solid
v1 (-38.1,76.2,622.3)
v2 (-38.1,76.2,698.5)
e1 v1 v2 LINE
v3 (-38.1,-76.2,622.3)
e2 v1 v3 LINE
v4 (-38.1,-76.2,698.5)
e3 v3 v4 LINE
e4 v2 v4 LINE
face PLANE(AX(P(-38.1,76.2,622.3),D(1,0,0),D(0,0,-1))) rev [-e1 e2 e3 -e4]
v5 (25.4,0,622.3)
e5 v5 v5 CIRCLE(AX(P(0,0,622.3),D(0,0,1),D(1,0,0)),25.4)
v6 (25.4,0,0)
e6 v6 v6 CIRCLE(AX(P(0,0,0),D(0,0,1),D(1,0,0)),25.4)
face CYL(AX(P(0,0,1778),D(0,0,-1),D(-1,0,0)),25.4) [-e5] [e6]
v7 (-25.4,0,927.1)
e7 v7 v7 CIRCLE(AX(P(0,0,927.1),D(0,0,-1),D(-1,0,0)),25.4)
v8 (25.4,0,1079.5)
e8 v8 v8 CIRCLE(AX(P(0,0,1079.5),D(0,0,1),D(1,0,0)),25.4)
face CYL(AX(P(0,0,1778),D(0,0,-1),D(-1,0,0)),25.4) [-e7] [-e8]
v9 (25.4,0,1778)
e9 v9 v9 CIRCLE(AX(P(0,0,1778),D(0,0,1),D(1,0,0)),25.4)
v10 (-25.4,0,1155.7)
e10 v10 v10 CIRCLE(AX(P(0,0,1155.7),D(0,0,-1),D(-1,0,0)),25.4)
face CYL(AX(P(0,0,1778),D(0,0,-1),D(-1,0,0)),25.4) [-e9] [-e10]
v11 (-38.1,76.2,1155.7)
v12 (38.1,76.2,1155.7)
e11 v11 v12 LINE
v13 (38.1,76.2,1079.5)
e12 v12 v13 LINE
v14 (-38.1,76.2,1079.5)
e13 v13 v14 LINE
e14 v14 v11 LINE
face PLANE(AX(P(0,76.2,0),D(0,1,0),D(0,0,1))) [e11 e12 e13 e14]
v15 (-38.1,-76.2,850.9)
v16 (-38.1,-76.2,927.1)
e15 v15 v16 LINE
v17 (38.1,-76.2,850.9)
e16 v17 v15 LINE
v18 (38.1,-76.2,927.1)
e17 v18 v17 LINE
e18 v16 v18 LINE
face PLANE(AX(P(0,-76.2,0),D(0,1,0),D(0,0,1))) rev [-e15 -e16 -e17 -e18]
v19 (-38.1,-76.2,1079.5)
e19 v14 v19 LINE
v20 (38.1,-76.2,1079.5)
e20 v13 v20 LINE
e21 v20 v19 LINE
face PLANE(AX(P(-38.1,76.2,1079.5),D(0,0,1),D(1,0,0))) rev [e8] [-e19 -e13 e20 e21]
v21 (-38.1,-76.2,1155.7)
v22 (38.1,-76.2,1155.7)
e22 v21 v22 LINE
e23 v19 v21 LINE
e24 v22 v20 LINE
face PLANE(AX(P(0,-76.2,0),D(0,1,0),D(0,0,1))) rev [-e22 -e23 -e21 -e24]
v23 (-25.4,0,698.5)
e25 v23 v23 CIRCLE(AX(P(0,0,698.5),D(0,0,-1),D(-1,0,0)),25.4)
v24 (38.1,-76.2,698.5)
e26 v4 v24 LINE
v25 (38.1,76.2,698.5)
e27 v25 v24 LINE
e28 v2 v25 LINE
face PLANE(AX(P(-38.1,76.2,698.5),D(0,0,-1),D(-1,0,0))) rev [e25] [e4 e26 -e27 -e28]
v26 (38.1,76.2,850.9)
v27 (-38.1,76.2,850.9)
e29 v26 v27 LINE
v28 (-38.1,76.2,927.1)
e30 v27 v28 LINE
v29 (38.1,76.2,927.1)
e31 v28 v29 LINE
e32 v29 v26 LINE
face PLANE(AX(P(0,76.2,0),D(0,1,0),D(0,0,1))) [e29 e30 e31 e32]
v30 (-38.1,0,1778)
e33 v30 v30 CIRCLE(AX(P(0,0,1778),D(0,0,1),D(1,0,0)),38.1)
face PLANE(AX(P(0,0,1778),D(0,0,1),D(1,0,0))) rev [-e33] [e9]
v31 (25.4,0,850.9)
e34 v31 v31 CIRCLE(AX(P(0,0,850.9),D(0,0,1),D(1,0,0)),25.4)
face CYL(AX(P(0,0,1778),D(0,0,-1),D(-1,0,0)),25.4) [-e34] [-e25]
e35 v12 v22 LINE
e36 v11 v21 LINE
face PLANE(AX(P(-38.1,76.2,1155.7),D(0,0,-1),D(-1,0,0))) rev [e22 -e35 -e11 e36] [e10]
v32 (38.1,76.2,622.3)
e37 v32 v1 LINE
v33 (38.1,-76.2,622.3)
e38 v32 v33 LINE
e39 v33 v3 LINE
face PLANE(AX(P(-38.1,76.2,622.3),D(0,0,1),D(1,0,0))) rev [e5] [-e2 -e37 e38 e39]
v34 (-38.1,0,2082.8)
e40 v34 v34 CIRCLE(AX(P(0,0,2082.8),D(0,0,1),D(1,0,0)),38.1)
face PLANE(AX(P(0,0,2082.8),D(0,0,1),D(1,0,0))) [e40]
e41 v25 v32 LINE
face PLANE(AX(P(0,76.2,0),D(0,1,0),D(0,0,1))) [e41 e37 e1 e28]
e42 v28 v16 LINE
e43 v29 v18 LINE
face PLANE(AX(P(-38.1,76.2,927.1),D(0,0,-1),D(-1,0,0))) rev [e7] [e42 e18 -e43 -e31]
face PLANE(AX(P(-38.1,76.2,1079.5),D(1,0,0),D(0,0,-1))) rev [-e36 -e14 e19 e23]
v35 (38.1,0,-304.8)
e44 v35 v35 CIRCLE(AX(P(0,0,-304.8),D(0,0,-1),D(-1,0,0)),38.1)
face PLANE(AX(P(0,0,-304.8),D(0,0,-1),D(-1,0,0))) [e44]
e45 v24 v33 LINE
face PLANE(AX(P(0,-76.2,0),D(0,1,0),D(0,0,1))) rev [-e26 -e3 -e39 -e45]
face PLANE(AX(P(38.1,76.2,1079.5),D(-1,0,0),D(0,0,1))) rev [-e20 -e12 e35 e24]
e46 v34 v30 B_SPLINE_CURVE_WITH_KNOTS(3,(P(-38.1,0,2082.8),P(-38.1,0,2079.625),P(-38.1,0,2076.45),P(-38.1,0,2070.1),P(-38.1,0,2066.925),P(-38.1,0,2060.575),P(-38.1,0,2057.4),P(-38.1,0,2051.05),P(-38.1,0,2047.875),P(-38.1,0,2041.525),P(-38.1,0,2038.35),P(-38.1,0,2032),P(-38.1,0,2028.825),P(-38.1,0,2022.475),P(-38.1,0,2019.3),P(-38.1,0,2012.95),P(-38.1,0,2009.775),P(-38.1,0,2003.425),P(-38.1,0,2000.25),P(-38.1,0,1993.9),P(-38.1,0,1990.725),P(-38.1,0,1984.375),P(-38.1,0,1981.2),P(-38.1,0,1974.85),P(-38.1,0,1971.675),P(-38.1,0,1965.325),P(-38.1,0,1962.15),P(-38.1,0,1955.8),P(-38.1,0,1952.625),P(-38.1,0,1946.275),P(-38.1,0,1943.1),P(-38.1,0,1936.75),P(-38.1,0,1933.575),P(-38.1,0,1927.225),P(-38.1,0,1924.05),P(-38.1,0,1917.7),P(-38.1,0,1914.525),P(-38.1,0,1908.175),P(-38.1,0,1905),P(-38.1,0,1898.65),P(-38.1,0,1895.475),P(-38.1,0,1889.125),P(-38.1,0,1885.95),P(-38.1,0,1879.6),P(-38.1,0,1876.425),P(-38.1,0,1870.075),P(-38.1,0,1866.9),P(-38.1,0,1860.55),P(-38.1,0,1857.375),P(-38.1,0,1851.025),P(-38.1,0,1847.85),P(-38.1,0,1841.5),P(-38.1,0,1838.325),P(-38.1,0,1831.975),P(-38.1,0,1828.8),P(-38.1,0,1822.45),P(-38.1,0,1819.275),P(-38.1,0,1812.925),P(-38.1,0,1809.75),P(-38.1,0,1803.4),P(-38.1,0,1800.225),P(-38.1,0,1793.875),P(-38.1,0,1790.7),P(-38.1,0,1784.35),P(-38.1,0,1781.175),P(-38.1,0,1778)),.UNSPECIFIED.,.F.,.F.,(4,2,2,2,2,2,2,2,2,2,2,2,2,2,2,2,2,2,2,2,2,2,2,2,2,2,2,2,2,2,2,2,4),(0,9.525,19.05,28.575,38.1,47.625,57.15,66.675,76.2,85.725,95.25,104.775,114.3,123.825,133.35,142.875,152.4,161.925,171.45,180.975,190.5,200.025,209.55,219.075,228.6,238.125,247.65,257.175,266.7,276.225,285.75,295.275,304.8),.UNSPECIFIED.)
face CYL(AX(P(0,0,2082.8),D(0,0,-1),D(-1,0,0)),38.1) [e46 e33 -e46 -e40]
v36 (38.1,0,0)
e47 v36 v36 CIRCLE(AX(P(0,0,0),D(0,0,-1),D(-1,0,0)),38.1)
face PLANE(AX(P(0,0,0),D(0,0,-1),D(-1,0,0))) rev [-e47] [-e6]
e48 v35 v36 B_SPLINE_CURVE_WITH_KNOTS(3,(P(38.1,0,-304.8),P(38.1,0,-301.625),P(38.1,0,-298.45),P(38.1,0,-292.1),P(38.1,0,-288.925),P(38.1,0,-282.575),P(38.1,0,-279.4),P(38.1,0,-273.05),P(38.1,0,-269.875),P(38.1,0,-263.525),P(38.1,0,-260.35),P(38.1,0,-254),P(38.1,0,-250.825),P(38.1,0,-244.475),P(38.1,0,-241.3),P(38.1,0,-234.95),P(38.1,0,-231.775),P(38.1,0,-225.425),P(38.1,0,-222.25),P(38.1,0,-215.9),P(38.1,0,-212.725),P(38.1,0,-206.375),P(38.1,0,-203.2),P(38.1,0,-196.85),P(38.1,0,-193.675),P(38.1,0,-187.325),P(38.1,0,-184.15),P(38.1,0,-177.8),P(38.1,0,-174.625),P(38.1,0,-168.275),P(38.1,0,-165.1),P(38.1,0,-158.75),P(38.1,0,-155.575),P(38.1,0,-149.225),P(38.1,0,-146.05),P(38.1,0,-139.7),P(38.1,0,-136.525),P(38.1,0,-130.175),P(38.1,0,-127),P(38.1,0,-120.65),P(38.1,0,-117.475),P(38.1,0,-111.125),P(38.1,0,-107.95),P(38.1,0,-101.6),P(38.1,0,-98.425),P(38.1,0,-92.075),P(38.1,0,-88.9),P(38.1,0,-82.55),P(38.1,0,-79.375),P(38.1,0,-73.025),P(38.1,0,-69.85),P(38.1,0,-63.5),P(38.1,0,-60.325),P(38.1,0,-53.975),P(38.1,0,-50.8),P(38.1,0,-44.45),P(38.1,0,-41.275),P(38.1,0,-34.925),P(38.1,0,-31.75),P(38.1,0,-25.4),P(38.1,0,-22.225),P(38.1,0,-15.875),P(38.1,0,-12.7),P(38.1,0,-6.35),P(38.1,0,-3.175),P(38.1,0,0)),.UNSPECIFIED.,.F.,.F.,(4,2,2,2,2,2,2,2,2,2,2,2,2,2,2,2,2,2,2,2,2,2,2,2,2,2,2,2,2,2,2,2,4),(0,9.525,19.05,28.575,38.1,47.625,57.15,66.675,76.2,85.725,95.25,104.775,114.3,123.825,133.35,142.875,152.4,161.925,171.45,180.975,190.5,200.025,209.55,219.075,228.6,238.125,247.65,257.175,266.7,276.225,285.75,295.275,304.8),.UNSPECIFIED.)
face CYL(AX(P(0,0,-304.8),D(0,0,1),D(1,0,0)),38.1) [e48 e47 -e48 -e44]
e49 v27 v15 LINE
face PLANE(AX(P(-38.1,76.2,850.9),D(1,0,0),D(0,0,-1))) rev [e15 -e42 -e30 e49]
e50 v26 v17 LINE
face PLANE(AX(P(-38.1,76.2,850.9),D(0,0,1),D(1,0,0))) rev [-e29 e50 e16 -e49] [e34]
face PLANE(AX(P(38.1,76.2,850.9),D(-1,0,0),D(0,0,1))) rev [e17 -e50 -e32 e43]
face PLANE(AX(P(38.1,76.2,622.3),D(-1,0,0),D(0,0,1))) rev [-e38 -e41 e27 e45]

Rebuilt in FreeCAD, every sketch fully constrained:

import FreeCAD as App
import Part
import Sketcher

V = App.Vector
Q = App.Units.Quantity

doc = App.newDocument("Part")
params = doc.addObject("Spreadsheet::Sheet", "Params")
for row, (alias, value) in enumerate([
    ("sketch1_diameter", "2 in"),
    ("pad1_length", "70 in"),
    ("sketch2_diameter", "3 in"),
    ("pad2_length", "12 in"),
    ("sketch3_diameter", "3 in"),
    ("pad3_length", "12 in"),
    ("sketch4_width", "3 in"),
    ("pad4_length", "6 in"),
], start=1):
    params.set(f"A{row}", alias)
    params.set(f"B{row}", "=" + value)
    params.setAlias(f"B{row}", alias)

body = doc.addObject("PartDesign::Body", "Body")

sketch1 = doc.addObject("Sketcher::SketchObject", "Sketch")
body.addObject(sketch1)
sketch1.AttachmentSupport = (doc.XY_Plane, [""])
sketch1.MapMode = "FlatFace"
sketch1.addGeometry(Part.Circle(V(0, 0, 0), V(0, 0, 1), 25), False)
sketch1.addConstraint([
    Sketcher.Constraint("Coincident", 0, 3, -1, 1),
    Sketcher.Constraint("Diameter", 0, Q("2 in")),
])
sketch1.setExpression("Constraints[1]", "Params.sketch1_diameter")
pad1 = doc.addObject("PartDesign::Pad", "Pad")
body.addObject(pad1)
pad1.Profile = sketch1
pad1.setExpression("Length", "Params.pad1_length")

sketch2 = doc.addObject("Sketcher::SketchObject", "Sketch001")
body.addObject(sketch2)
sketch2.AttachmentSupport = (doc.XY_Plane, [""])
sketch2.MapMode = "FlatFace"
sketch2.AttachmentOffset = App.Placement(V(0, 0, 70 * 25.4), App.Rotation())
sketch2.addGeometry(Part.Circle(V(0, 0, 0), V(0, 0, 1), 38), False)
sketch2.addConstraint([
    Sketcher.Constraint("Coincident", 0, 3, -1, 1),
    Sketcher.Constraint("Diameter", 0, Q("3 in")),
])
sketch2.setExpression("Constraints[1]", "Params.sketch2_diameter")
pad2 = doc.addObject("PartDesign::Pad", "Pad001")
body.addObject(pad2)
pad2.Profile = sketch2
pad2.setExpression("Length", "Params.pad2_length")

sketch3 = doc.addObject("Sketcher::SketchObject", "Sketch002")
body.addObject(sketch3)
sketch3.AttachmentSupport = (doc.XY_Plane, [""])
sketch3.MapMode = "FlatFace"
sketch3.AttachmentOffset = App.Placement(V(0, 0, -12 * 25.4), App.Rotation())
sketch3.addGeometry(Part.Circle(V(0, 0, 0), V(0, 0, 1), 38), False)
sketch3.addConstraint([
    Sketcher.Constraint("Coincident", 0, 3, -1, 1),
    Sketcher.Constraint("Diameter", 0, Q("3 in")),
])
sketch3.setExpression("Constraints[1]", "Params.sketch3_diameter")
pad3 = doc.addObject("PartDesign::Pad", "Pad002")
body.addObject(pad3)
pad3.Profile = sketch3
pad3.setExpression("Length", "Params.pad3_length")

sketch4 = doc.addObject("Sketcher::SketchObject", "Sketch003")
body.addObject(sketch4)
sketch4.AttachmentSupport = (doc.XZ_Plane, [""])
sketch4.MapMode = "FlatFace"
sketch4.addGeometry([
    Part.LineSegment(V(-38, 851, 0), V(-38, 927, 0)),
    Part.LineSegment(V(-38, 927, 0), V(38, 927, 0)),
    Part.LineSegment(V(38, 927, 0), V(38, 851, 0)),
    Part.LineSegment(V(38, 851, 0), V(-38, 851, 0)),
    Part.LineSegment(V(-38, 1080, 0), V(-38, 1156, 0)),
    Part.LineSegment(V(-38, 1156, 0), V(38, 1156, 0)),
    Part.LineSegment(V(38, 1156, 0), V(38, 1080, 0)),
    Part.LineSegment(V(38, 1080, 0), V(-38, 1080, 0)),
    Part.LineSegment(V(-38, 622, 0), V(-38, 698, 0)),
    Part.LineSegment(V(-38, 698, 0), V(38, 698, 0)),
    Part.LineSegment(V(38, 698, 0), V(38, 622, 0)),
    Part.LineSegment(V(38, 622, 0), V(-38, 622, 0)),
], False)
sketch4.addConstraint([
    Sketcher.Constraint("Coincident", 0, 2, 1, 1),
    Sketcher.Constraint("Coincident", 1, 2, 2, 1),
    Sketcher.Constraint("Coincident", 2, 2, 3, 1),
    Sketcher.Constraint("Coincident", 3, 2, 0, 1),
    Sketcher.Constraint("Coincident", 4, 2, 5, 1),
    Sketcher.Constraint("Coincident", 5, 2, 6, 1),
    Sketcher.Constraint("Coincident", 6, 2, 7, 1),
    Sketcher.Constraint("Coincident", 7, 2, 4, 1),
    Sketcher.Constraint("Coincident", 8, 2, 9, 1),
    Sketcher.Constraint("Coincident", 9, 2, 10, 1),
    Sketcher.Constraint("Coincident", 10, 2, 11, 1),
    Sketcher.Constraint("Coincident", 11, 2, 8, 1),
    Sketcher.Constraint("Vertical", 0),
    Sketcher.Constraint("Horizontal", 1),
    Sketcher.Constraint("Vertical", 2),
    Sketcher.Constraint("Horizontal", 3),
    Sketcher.Constraint("Vertical", 4),
    Sketcher.Constraint("Horizontal", 5),
    Sketcher.Constraint("Vertical", 6),
    Sketcher.Constraint("Horizontal", 7),
    Sketcher.Constraint("Vertical", 8),
    Sketcher.Constraint("Horizontal", 9),
    Sketcher.Constraint("Vertical", 10),
    Sketcher.Constraint("Horizontal", 11),
    Sketcher.Constraint("Vertical", 3, 2, 4, 2),
    Sketcher.Constraint("Vertical", 2, 2, 5, 2),
    Sketcher.Constraint("Vertical", 7, 2, 8, 2),
    Sketcher.Constraint("Vertical", 6, 2, 9, 2),
    Sketcher.Constraint("Equal", 11, 0),
    Sketcher.Constraint("Equal", 2, 4),
    Sketcher.Constraint("Equal", 6, 8),
    Sketcher.Constraint("DistanceX", 1, 1, 1, 2, Q("3 in")),
    Sketcher.Constraint("DistanceY", 0, 2, 4, 2, Q("9 in")),
    Sketcher.Constraint("DistanceY", 8, 2, 3, 2, Q("6 in")),
    Sketcher.Constraint("DistanceX", 0, 2, -1, 1, Q("1.5 in")),
    Sketcher.Constraint("DistanceY", -1, 1, 0, 2, Q("36.5 in")),
])
sketch4.setExpression("Constraints[31]", "Params.sketch4_width")
pad4 = doc.addObject("PartDesign::Pad", "Pad003")
body.addObject(pad4)
pad4.Profile = sketch4
pad4.setExpression("Length", "Params.pad4_length")
pad4.Midplane = True

doc.recompute()
